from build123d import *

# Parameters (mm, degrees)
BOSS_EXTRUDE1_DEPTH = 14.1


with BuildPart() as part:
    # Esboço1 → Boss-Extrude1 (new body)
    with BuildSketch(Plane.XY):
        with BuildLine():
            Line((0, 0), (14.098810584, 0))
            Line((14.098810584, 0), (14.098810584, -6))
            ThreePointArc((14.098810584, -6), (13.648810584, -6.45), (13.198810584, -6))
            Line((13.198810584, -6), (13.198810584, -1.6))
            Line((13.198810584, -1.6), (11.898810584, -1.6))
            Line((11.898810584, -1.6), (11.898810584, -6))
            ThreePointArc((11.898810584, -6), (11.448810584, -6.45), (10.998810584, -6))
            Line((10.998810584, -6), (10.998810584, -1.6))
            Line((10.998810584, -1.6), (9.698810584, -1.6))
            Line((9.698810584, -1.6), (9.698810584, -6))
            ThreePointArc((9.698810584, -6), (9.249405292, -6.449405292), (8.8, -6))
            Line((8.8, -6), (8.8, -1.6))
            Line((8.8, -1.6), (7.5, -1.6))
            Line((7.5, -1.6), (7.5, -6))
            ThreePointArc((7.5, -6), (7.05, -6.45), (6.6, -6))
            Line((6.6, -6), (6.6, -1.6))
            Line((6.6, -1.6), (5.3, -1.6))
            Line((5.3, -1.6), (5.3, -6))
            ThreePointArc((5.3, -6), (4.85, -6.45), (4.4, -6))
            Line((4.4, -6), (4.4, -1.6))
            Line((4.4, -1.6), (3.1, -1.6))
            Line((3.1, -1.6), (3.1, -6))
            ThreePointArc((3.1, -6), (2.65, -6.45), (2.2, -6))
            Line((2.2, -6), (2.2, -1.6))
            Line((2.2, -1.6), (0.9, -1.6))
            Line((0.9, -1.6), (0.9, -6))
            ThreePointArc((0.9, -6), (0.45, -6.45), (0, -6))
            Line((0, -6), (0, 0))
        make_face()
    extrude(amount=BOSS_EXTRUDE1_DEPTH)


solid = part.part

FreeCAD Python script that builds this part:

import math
import FreeCAD as App
import Part
import Sketcher
Q = App.Units.Quantity

doc = App.newDocument("Part")
body = doc.addObject("PartDesign::Body", "Body")

sketch1 = doc.addObject("Sketcher::SketchObject", "Sketch")
body.addObject(sketch1)
sketch1.AttachmentSupport = (doc.XY_Plane, [""])
sketch1.MapMode = "FlatFace"
sketch1.addGeometry([
    Part.LineSegment(App.Vector(14.098811, 0, 0), App.Vector(0, 0, 0)),
    Part.LineSegment(App.Vector(0, 0, 0), App.Vector(0, -6, 0)),
    Part.ArcOfCircle(Part.Circle(App.Vector(0.45, -6, 0), App.Vector(0, 0, 1), 0.45), math.radians(180), math.radians(360)),
    Part.LineSegment(App.Vector(0.9, -6, 0), App.Vector(0.9, -1.6, 0)),
    Part.LineSegment(App.Vector(0.9, -1.6, 0), App.Vector(2.2, -1.6, 0)),
    Part.LineSegment(App.Vector(2.2, -1.6, 0), App.Vector(2.2, -6, 0)),
    Part.ArcOfCircle(Part.Circle(App.Vector(2.65, -6, 0), App.Vector(0, 0, 1), 0.45), math.radians(180), math.radians(360)),
    Part.LineSegment(App.Vector(3.1, -6, 0), App.Vector(3.1, -1.6, 0)),
    Part.LineSegment(App.Vector(3.1, -1.6, 0), App.Vector(4.4, -1.6, 0)),
    Part.LineSegment(App.Vector(4.4, -1.6, 0), App.Vector(4.4, -6, 0)),
    Part.ArcOfCircle(Part.Circle(App.Vector(4.85, -6, 0), App.Vector(0, 0, 1), 0.45), math.radians(180), math.radians(360)),
    Part.LineSegment(App.Vector(5.3, -6, 0), App.Vector(5.3, -1.6, 0)),
    Part.LineSegment(App.Vector(5.3, -1.6, 0), App.Vector(6.6, -1.6, 0)),
    Part.LineSegment(App.Vector(6.6, -1.6, 0), App.Vector(6.6, -6, 0)),
    Part.ArcOfCircle(Part.Circle(App.Vector(7.05, -6, 0), App.Vector(0, 0, 1), 0.45), math.radians(180), math.radians(360)),
    Part.LineSegment(App.Vector(7.5, -6, 0), App.Vector(7.5, -1.6, 0)),
    Part.LineSegment(App.Vector(7.5, -1.6, 0), App.Vector(8.8, -1.6, 0)),
    Part.LineSegment(App.Vector(8.8, -1.6, 0), App.Vector(8.8, -6, 0)),
    Part.ArcOfCircle(Part.Circle(App.Vector(9.249405, -6, 0), App.Vector(0, 0, 1), 0.449405), math.radians(180), math.radians(360)),
    Part.LineSegment(App.Vector(9.698811, -6, 0), App.Vector(9.698811, -1.6, 0)),
    Part.LineSegment(App.Vector(9.698811, -1.6, 0), App.Vector(10.998811, -1.6, 0)),
    Part.LineSegment(App.Vector(10.998811, -1.6, 0), App.Vector(10.998811, -6, 0)),
    Part.ArcOfCircle(Part.Circle(App.Vector(11.448811, -6, 0), App.Vector(0, 0, 1), 0.45), math.radians(180), math.radians(360)),
    Part.LineSegment(App.Vector(11.898811, -6, 0), App.Vector(11.898811, -1.6, 0)),
    Part.LineSegment(App.Vector(11.898811, -1.6, 0), App.Vector(13.198811, -1.6, 0)),
    Part.LineSegment(App.Vector(13.198811, -1.6, 0), App.Vector(13.198811, -6, 0)),
    Part.ArcOfCircle(Part.Circle(App.Vector(13.648811, -6, 0), App.Vector(0, 0, 1), 0.45), math.radians(180), math.radians(360)),
    Part.LineSegment(App.Vector(14.098811, -6, 0), App.Vector(14.098811, 0, 0)),
], False)
sketch1.addConstraint([
    Sketcher.Constraint("Coincident", 0, 2, 1, 1),
    Sketcher.Constraint("Tangent", 1, 2, 2, 1),
    Sketcher.Constraint("Tangent", 2, 2, 3, 1),
    Sketcher.Constraint("Coincident", 3, 2, 4, 1),
    Sketcher.Constraint("Coincident", 4, 2, 5, 1),
    Sketcher.Constraint("Tangent", 5, 2, 6, 1),
    Sketcher.Constraint("Tangent", 6, 2, 7, 1),
    Sketcher.Constraint("Coincident", 7, 2, 8, 1),
    Sketcher.Constraint("Coincident", 8, 2, 9, 1),
    Sketcher.Constraint("Tangent", 9, 2, 10, 1),
    Sketcher.Constraint("Tangent", 10, 2, 11, 1),
    Sketcher.Constraint("Coincident", 11, 2, 12, 1),
    Sketcher.Constraint("Coincident", 12, 2, 13, 1),
    Sketcher.Constraint("Tangent", 13, 2, 14, 1),
    Sketcher.Constraint("Tangent", 14, 2, 15, 1),
    Sketcher.Constraint("Coincident", 15, 2, 16, 1),
    Sketcher.Constraint("Coincident", 16, 2, 17, 1),
    Sketcher.Constraint("Tangent", 17, 2, 18, 1),
    Sketcher.Constraint("Tangent", 18, 2, 19, 1),
    Sketcher.Constraint("Coincident", 19, 2, 20, 1),
    Sketcher.Constraint("Coincident", 20, 2, 21, 1),
    Sketcher.Constraint("Tangent", 21, 2, 22, 1),
    Sketcher.Constraint("Tangent", 22, 2, 23, 1),
    Sketcher.Constraint("Coincident", 23, 2, 24, 1),
    Sketcher.Constraint("Coincident", 24, 2, 25, 1),
    Sketcher.Constraint("Tangent", 25, 2, 26, 1),
    Sketcher.Constraint("Tangent", 26, 2, 27, 1),
    Sketcher.Constraint("Coincident", 27, 2, 0, 1),
    Sketcher.Constraint("Horizontal", 0),
    Sketcher.Constraint("Vertical", 1),
    Sketcher.Constraint("Vertical", 3),
    Sketcher.Constraint("Horizontal", 4),
    Sketcher.Constraint("Vertical", 5),
    Sketcher.Constraint("Vertical", 7),
    Sketcher.Constraint("Horizontal", 8),
    Sketcher.Constraint("Vertical", 9),
    Sketcher.Constraint("Vertical", 11),
    Sketcher.Constraint("Horizontal", 12),
    Sketcher.Constraint("Vertical", 13),
    Sketcher.Constraint("Vertical", 15),
    Sketcher.Constraint("Horizontal", 16),
    Sketcher.Constraint("Vertical", 17),
    Sketcher.Constraint("Vertical", 19),
    Sketcher.Constraint("Horizontal", 20),
    Sketcher.Constraint("Vertical", 21),
    Sketcher.Constraint("Vertical", 23),
    Sketcher.Constraint("Horizontal", 24),
    Sketcher.Constraint("Vertical", 25),
    Sketcher.Constraint("Vertical", 27),
    Sketcher.Constraint("Coincident", 0, 2, -1, 1),
    Sketcher.Constraint("Equal", 2, 6),
    Sketcher.Constraint("Equal", 6, 10),
    Sketcher.Constraint("Equal", 10, 14),
    Sketcher.Constraint("Equal", 14, 22),
    Sketcher.Constraint("Equal", 22, 26),
    Sketcher.Constraint("Horizontal", 2, 3, 6, 3),
    Sketcher.Constraint("Horizontal", 6, 3, 10, 3),
    Sketcher.Constraint("Horizontal", 10, 3, 14, 3),
    Sketcher.Constraint("Horizontal", 14, 3, 18, 3),
    Sketcher.Constraint("Horizontal", 18, 3, 22, 3),
    Sketcher.Constraint("Horizontal", 22, 3, 26, 3),
    Sketcher.Constraint("Horizontal", 4, 2, 7, 2),
    Sketcher.Constraint("Horizontal", 8, 2, 11, 2),
    Sketcher.Constraint("Horizontal", 12, 2, 15, 2),
    Sketcher.Constraint("Horizontal", 16, 2, 19, 2),
    Sketcher.Constraint("Horizontal", 20, 2, 23, 2),
    Sketcher.Constraint("Equal", 4, 8),
    Sketcher.Constraint("Equal", 8, 12),
    Sketcher.Constraint("Equal", 12, 16),
    Sketcher.Constraint("Equal", 16, 20),
    Sketcher.Constraint("Equal", 20, 24),
    Sketcher.Constraint("DistanceY", 1, 2, 1, 1, Q("6 mm")),
    Sketcher.Constraint("Radius", 2, Q("0.45 mm")),
    Sketcher.Constraint("DistanceX", 4, 1, 4, 2, Q("1.3 mm")),
    Sketcher.Constraint("DistanceY", 3, 1, 3, 2, Q("4.4 mm")),
    Sketcher.Constraint("Radius", 18, Q("0.449405 mm")),
])
pad1 = doc.addObject("PartDesign::Pad", "Pad")
body.addObject(pad1)
pad1.Profile = sketch1
pad1.Length = 14.1

doc.recompute()
